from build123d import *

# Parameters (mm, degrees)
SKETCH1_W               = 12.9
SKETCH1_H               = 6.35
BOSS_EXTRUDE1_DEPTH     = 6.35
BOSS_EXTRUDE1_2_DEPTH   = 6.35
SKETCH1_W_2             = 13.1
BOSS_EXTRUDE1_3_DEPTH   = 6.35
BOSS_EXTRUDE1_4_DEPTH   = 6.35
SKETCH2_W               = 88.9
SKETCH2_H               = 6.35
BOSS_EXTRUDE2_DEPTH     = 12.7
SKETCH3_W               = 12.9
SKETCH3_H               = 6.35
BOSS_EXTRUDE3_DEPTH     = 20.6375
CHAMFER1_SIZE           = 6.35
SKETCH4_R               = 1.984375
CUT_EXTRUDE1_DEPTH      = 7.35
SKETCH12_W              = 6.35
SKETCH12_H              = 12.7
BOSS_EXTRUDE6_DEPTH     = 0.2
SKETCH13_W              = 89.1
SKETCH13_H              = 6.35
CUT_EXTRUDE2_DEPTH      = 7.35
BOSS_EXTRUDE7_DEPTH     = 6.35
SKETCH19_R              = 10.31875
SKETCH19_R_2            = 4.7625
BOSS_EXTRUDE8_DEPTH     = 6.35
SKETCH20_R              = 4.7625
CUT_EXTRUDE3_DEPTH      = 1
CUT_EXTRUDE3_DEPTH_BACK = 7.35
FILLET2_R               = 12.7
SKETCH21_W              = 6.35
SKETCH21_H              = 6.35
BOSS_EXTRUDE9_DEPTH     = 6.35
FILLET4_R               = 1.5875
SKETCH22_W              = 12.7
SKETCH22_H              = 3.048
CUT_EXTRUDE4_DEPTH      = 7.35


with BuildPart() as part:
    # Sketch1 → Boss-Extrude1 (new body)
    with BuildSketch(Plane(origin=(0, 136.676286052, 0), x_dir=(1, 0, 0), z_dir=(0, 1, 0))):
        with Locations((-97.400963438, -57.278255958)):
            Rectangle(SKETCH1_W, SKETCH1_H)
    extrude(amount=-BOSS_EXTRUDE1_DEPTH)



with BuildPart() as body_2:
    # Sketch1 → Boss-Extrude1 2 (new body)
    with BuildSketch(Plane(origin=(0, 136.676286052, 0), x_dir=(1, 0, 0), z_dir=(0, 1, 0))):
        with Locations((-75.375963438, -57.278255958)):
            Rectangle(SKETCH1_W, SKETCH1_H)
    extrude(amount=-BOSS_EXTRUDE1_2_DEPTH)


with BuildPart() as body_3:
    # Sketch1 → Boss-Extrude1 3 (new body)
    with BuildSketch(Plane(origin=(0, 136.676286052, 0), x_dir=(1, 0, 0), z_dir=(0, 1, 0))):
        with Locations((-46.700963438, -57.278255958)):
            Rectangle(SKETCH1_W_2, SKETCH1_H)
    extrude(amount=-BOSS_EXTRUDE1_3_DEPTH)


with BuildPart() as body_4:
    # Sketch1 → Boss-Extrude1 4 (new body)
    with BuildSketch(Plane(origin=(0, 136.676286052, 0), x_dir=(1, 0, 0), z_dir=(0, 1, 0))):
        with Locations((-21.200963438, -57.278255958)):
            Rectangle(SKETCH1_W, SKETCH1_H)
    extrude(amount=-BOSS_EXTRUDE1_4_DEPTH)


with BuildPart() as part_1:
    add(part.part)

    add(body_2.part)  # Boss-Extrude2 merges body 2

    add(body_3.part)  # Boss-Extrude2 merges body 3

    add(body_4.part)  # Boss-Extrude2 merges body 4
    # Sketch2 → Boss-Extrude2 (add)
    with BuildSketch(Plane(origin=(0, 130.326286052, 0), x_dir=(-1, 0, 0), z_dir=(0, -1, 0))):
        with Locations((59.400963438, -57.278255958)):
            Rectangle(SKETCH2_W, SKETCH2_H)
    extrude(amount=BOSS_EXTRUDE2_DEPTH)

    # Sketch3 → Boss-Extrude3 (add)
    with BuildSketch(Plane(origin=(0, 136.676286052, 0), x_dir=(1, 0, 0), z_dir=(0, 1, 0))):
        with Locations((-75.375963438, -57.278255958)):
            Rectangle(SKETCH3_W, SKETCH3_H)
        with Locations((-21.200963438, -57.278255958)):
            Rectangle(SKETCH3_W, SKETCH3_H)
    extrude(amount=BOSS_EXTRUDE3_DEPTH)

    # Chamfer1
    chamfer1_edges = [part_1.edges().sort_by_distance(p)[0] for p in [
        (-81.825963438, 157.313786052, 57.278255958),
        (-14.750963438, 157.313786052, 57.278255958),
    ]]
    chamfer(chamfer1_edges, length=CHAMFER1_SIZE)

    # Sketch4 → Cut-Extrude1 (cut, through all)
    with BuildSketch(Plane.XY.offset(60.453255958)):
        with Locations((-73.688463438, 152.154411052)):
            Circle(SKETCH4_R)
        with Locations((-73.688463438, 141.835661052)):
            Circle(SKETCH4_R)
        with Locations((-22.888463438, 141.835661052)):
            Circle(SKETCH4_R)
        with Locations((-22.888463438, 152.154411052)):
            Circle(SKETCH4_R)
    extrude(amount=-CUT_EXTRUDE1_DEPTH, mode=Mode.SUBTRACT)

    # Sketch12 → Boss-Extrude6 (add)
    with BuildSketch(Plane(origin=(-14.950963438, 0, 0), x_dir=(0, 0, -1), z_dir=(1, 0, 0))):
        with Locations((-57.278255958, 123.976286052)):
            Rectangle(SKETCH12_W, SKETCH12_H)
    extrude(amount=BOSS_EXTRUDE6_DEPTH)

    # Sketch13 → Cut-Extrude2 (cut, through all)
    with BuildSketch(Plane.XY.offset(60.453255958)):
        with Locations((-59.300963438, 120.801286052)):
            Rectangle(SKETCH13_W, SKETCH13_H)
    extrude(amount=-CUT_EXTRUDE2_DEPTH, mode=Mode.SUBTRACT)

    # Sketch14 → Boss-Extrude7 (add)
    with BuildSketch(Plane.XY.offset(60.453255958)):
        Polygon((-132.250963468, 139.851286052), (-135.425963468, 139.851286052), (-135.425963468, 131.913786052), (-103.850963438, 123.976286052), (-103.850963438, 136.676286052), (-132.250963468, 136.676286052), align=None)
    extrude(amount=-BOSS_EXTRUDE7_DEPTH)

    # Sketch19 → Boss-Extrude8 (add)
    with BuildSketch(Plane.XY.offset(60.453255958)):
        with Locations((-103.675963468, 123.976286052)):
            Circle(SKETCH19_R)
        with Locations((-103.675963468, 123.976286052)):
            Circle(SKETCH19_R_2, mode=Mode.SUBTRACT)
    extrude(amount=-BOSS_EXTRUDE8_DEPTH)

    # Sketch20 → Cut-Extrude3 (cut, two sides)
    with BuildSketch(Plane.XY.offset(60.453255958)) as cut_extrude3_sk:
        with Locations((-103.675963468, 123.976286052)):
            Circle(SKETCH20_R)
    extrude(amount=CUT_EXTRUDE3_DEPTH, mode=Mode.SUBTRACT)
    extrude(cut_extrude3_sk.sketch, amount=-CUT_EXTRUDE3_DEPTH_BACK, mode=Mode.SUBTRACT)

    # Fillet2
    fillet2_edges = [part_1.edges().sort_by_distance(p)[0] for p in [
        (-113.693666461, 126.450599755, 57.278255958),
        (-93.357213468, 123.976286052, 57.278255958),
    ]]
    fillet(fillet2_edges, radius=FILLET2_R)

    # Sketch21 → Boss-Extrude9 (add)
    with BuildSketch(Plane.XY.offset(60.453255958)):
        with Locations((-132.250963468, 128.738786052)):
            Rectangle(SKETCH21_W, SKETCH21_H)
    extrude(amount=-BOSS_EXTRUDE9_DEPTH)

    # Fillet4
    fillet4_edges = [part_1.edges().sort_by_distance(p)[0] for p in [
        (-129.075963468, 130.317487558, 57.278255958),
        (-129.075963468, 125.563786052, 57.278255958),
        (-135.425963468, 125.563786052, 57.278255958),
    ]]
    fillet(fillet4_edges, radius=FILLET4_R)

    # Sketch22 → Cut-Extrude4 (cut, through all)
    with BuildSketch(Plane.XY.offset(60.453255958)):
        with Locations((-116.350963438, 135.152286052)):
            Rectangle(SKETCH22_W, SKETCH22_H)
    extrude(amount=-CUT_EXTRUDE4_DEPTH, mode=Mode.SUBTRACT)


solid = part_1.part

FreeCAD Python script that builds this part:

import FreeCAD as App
import Part
import Sketcher

V = App.Vector
Q = App.Units.Quantity


def edges_at(feature, points):
    """Names of the edges that pass closest to the given points."""
    edges = feature.Shape.Edges
    near = lambda p: min(range(len(edges)), key=lambda i: edges[i].distToShape(Part.Vertex(*p))[0])
    return sorted({f"Edge{near(p) + 1}" for p in points})


def add_polygon(sketch, points):
    """Adds a closed chain of lines whose ends are joined by coincident constraints."""
    first, n = sketch.GeometryCount, len(points)
    for a, b in zip(points, points[1:] + points[:1]):
        sketch.addGeometry(Part.LineSegment(App.Vector(*a, 0), App.Vector(*b, 0)), False)
    for i in range(n):
        sketch.addConstraint(Sketcher.Constraint("Coincident", first + i, 2, first + (i + 1) % n, 1))

doc = App.newDocument("Part")
params = doc.addObject("Spreadsheet::Sheet", "Params")
for row, (alias, value) in enumerate([
    ("sketch1_height", "0.25 in"),
    ("pad1_length", "0.25 in"),
    ("sketch2_height", "0.25 in"),
    ("pad2_length", "0.25 in"),
    ("sketch3_height", "0.25 in"),
    ("pad3_length", "0.25 in"),
    ("sketch4_height", "0.25 in"),
    ("pad4_length", "0.25 in"),
    ("sketch5_width", "3.5 in"),
    ("sketch5_height", "0.25 in"),
    ("pad5_length", "0.5 in"),
    ("sketch6_height", "0.25 in"),
    ("pad6_length", "0.8125 in"),
    ("chamfer_size", "0.25 in"),
    ("sketch7_diameter", "0.15625 in"),
    ("sketch8_width", "0.5 in"),
    ("sketch8_height", "0.25 in"),
    ("pad7_length", "0.2 mm"),
    ("sketch9_height", "0.25 in"),
    ("sketch10_height", "0.5 in"),
    ("sketch10_width", "0.125 in"),
    ("sketch10_height2", "0.3125 in"),
    ("pad8_length", "0.25 in"),
    ("sketch11_diameter", "0.8125 in"),
    ("sketch11_diameter2", "0.375 in"),
    ("pad9_length", "0.25 in"),
    ("sketch12_diameter", "0.375 in"),
    ("fillet_radius", "0.5 in"),
    ("sketch13_width", "0.25 in"),
    ("pad10_length", "0.25 in"),
    ("fillet2_radius", "0.0625 in"),
    ("sketch14_width", "0.5 in"),
    ("sketch14_height", "0.12 in"),
], start=1):
    params.set(f"A{row}", alias)
    params.set(f"B{row}", "=" + value)
    params.setAlias(f"B{row}", alias)

body = doc.addObject("PartDesign::Body", "Body")

# Sketch on XZ plane
sketch1 = doc.addObject("Sketcher::SketchObject", "Sketch")
body.addObject(sketch1)
sketch1.AttachmentSupport = (doc.XZ_Plane, [""])
sketch1.MapMode = "FlatFace"
sketch1.AttachmentOffset = App.Placement(V(0, 0, -136.676286), App.Rotation())
add_polygon(sketch1, [(-104, 54), (-104, 60), (-91, 60), (-91, 54)])  # lines 0-3
sketch1.addConstraint([
    Sketcher.Constraint("Vertical", 0),
    Sketcher.Constraint("Horizontal", 1),
    Sketcher.Constraint("Vertical", 2),
    Sketcher.Constraint("Horizontal", 3),
    Sketcher.Constraint("DistanceY", 0, 1, 0, 2, Q("0.25 in")),
    Sketcher.Constraint("DistanceX", 1, 1, 1, 2, 12.9),
    Sketcher.Constraint("DistanceX", 0, 2, -1, 1, 103.850963),
    Sketcher.Constraint("DistanceY", -1, 1, 0, 2, 60.453256),
])
sketch1.setExpression("Constraints[8]", "Params.sketch1_height")
pad1 = doc.addObject("PartDesign::Pad", "Pad")
body.addObject(pad1)
pad1.Profile = sketch1
pad1.setExpression("Length", "Params.pad1_length")
body2 = doc.addObject("PartDesign::Body", "Body001")

# Sketch on XZ plane
sketch2 = doc.addObject("Sketcher::SketchObject", "Sketch001")
body2.addObject(sketch2)
sketch2.AttachmentSupport = (doc.getObject("XZ_Plane001"), [""])
sketch2.MapMode = "FlatFace"
sketch2.AttachmentOffset = App.Placement(V(0, 0, -136.676286), App.Rotation())
add_polygon(sketch2, [(-82, 54), (-82, 60), (-69, 60), (-69, 54)])  # lines 0-3
sketch2.addConstraint([
    Sketcher.Constraint("Vertical", 0),
    Sketcher.Constraint("Horizontal", 1),
    Sketcher.Constraint("Vertical", 2),
    Sketcher.Constraint("Horizontal", 3),
    Sketcher.Constraint("DistanceY", 0, 1, 0, 2, Q("0.25 in")),
    Sketcher.Constraint("DistanceX", 1, 1, 1, 2, 12.9),
    Sketcher.Constraint("DistanceX", 0, 2, -1, 1, 81.825963),
    Sketcher.Constraint("DistanceY", -1, 1, 0, 2, 60.453256),
])
sketch2.setExpression("Constraints[8]", "Params.sketch2_height")
pad2 = doc.addObject("PartDesign::Pad", "Pad001")
body2.addObject(pad2)
pad2.Profile = sketch2
pad2.setExpression("Length", "Params.pad2_length")
body3 = doc.addObject("PartDesign::Body", "Body002")

# Sketch on XZ plane
sketch3 = doc.addObject("Sketcher::SketchObject", "Sketch002")
body3.addObject(sketch3)
sketch3.AttachmentSupport = (doc.getObject("XZ_Plane002"), [""])
sketch3.MapMode = "FlatFace"
sketch3.AttachmentOffset = App.Placement(V(0, 0, -136.676286), App.Rotation())
add_polygon(sketch3, [(-53, 54), (-53, 60), (-40, 60), (-40, 54)])  # lines 0-3
sketch3.addConstraint([
    Sketcher.Constraint("Vertical", 0),
    Sketcher.Constraint("Horizontal", 1),
    Sketcher.Constraint("Vertical", 2),
    Sketcher.Constraint("Horizontal", 3),
    Sketcher.Constraint("DistanceY", 0, 1, 0, 2, Q("0.25 in")),
    Sketcher.Constraint("DistanceX", 1, 1, 1, 2, 13.1),
    Sketcher.Constraint("DistanceX", 0, 2, -1, 1, 53.250963),
    Sketcher.Constraint("DistanceY", -1, 1, 0, 2, 60.453256),
])
sketch3.setExpression("Constraints[8]", "Params.sketch3_height")
pad3 = doc.addObject("PartDesign::Pad", "Pad002")
body3.addObject(pad3)
pad3.Profile = sketch3
pad3.setExpression("Length", "Params.pad3_length")
body4 = doc.addObject("PartDesign::Body", "Body003")

# Sketch on XZ plane
sketch4 = doc.addObject("Sketcher::SketchObject", "Sketch003")
body4.addObject(sketch4)
sketch4.AttachmentSupport = (doc.getObject("XZ_Plane003"), [""])
sketch4.MapMode = "FlatFace"
sketch4.AttachmentOffset = App.Placement(V(0, 0, -136.676286), App.Rotation())
add_polygon(sketch4, [(-28, 54), (-28, 60), (-15, 60), (-15, 54)])  # lines 0-3
sketch4.addConstraint([
    Sketcher.Constraint("Vertical", 0),
    Sketcher.Constraint("Horizontal", 1),
    Sketcher.Constraint("Vertical", 2),
    Sketcher.Constraint("Horizontal", 3),
    Sketcher.Constraint("DistanceY", 0, 1, 0, 2, Q("0.25 in")),
    Sketcher.Constraint("DistanceX", 1, 1, 1, 2, 12.9),
    Sketcher.Constraint("DistanceX", 0, 2, -1, 1, 27.650963),
    Sketcher.Constraint("DistanceY", -1, 1, 0, 2, 60.453256),
])
sketch4.setExpression("Constraints[8]", "Params.sketch4_height")
pad4 = doc.addObject("PartDesign::Pad", "Pad003")
body4.addObject(pad4)
pad4.Profile = sketch4
pad4.setExpression("Length", "Params.pad4_length")
body.AllowCompound = True
doc.recompute()

boolean = doc.addObject("PartDesign::Boolean", "Boolean")
body.addObject(boolean)
boolean.Type = "Fuse"
boolean.addObjects([body2])
doc.recompute()

boolean2 = doc.addObject("PartDesign::Boolean", "Boolean001")
body.addObject(boolean2)
boolean2.Type = "Fuse"
boolean2.addObjects([body3])
doc.recompute()

boolean3 = doc.addObject("PartDesign::Boolean", "Boolean002")
body.addObject(boolean3)
boolean3.Type = "Fuse"
boolean3.addObjects([body4])

# Sketch on XZ plane
sketch5 = doc.addObject("Sketcher::SketchObject", "Sketch004")
body.addObject(sketch5)
sketch5.AttachmentSupport = (doc.XZ_Plane, [""])
sketch5.MapMode = "FlatFace"
sketch5.AttachmentOffset = App.Placement(V(0, 0, -130.326286), App.Rotation())
add_polygon(sketch5, [(-15, 54), (-15, 60), (-104, 60), (-104, 54)])  # lines 0-3
sketch5.addConstraint([
    Sketcher.Constraint("Vertical", 0),
    Sketcher.Constraint("Horizontal", 1),
    Sketcher.Constraint("Vertical", 2),
    Sketcher.Constraint("Horizontal", 3),
    Sketcher.Constraint("DistanceX", 1, 2, 1, 1, Q("3.5 in")),
    Sketcher.Constraint("DistanceY", 0, 1, 0, 2, Q("0.25 in")),
    Sketcher.Constraint("DistanceX", 0, 2, -1, 1, 14.950963),
    Sketcher.Constraint("DistanceY", -1, 1, 0, 2, 60.453256),
])
sketch5.setExpression("Constraints[8]", "Params.sketch5_width")
sketch5.setExpression("Constraints[9]", "Params.sketch5_height")
pad5 = doc.addObject("PartDesign::Pad", "Pad004")
body.addObject(pad5)
pad5.Profile = sketch5
pad5.setExpression("Length", "Params.pad5_length")

# Sketch on XZ plane
sketch6 = doc.addObject("Sketcher::SketchObject", "Sketch005")
body.addObject(sketch6)
sketch6.AttachmentSupport = (doc.XZ_Plane, [""])
sketch6.MapMode = "FlatFace"
sketch6.AttachmentOffset = App.Placement(V(0, 0, -136.676286), App.Rotation())
add_polygon(sketch6, [(-82, 54), (-82, 60), (-69, 60), (-69, 54)])  # lines 0-3
add_polygon(sketch6, [(-28, 54), (-28, 60), (-15, 60), (-15, 54)])  # lines 4-7
sketch6.addConstraint([
    Sketcher.Constraint("Vertical", 0),
    Sketcher.Constraint("Horizontal", 1),
    Sketcher.Constraint("Vertical", 2),
    Sketcher.Constraint("Horizontal", 3),
    Sketcher.Constraint("Vertical", 4),
    Sketcher.Constraint("Horizontal", 5),
    Sketcher.Constraint("Vertical", 6),
    Sketcher.Constraint("Horizontal", 7),
    Sketcher.Constraint("Horizontal", 1, 2, 4, 2),
    Sketcher.Constraint("Horizontal", 3, 2, 6, 2),
    Sketcher.Constraint("Equal", 3, 5),
    Sketcher.Constraint("DistanceY", 0, 1, 0, 2, Q("0.25 in")),
    Sketcher.Constraint("DistanceX", 1, 2, 4, 2, Q("1.625 in")),
    Sketcher.Constraint("DistanceX", 1, 1, 1, 2, 12.9),
    Sketcher.Constraint("DistanceX", 0, 2, -1, 1, 81.825963),
    Sketcher.Constraint("DistanceY", -1, 1, 0, 2, 60.453256),
])
sketch6.setExpression("Constraints[19]", "Params.sketch6_height")
pad6 = doc.addObject("PartDesign::Pad", "Pad005")
body.addObject(pad6)
pad6.Profile = sketch6
pad6.setExpression("Length", "Params.pad6_length")
pad6.Reversed = True
doc.recompute()

chamfer = doc.addObject("PartDesign::Chamfer", "Chamfer")
body.addObject(chamfer)
chamfer.Base = (pad6, edges_at(pad6, [(-81.826, 157.314, 57.278), (-14.751, 157.314, 57.278)]))
chamfer.setExpression("Size", "Params.chamfer_size")

# Sketch on XY plane
sketch7 = doc.addObject("Sketcher::SketchObject", "Sketch006")
body.addObject(sketch7)
sketch7.AttachmentSupport = (doc.XY_Plane, [""])
sketch7.MapMode = "FlatFace"
sketch7.AttachmentOffset = App.Placement(V(0, 0, 60.453256), App.Rotation())
sketch7.addGeometry([
    Part.Circle(V(-73.7, 152.2, 0), V(0, 0, 1), 2),
    Part.Circle(V(-73.7, 141.8, 0), V(0, 0, 1), 2),
    Part.Circle(V(-22.9, 141.8, 0), V(0, 0, 1), 2),
    Part.Circle(V(-22.9, 152.2, 0), V(0, 0, 1), 2),
], False)
sketch7.addConstraint([
    Sketcher.Constraint("Equal", 0, 1),
    Sketcher.Constraint("Equal", 1, 2),
    Sketcher.Constraint("Equal", 2, 3),
    Sketcher.Constraint("Horizontal", 1, 3, 2, 3),
    Sketcher.Constraint("Horizontal", 0, 3, 3, 3),
    Sketcher.Constraint("Vertical", 0, 3, 1, 3),
    Sketcher.Constraint("Vertical", 2, 3, 3, 3),
    Sketcher.Constraint("Diameter", 0, Q("0.15625 in")),
    Sketcher.Constraint("DistanceX", 1, 3, 2, 3, Q("2 in")),
    Sketcher.Constraint("DistanceY", 1, 3, 0, 3, Q("0.40625 in")),
    Sketcher.Constraint("DistanceY", -1, 1, 0, 3, 152.154411),
    Sketcher.Constraint("DistanceX", 0, 3, -1, 1, 73.688463),
])
sketch7.setExpression("Constraints[7]", "Params.sketch7_diameter")
pocket1 = doc.addObject("PartDesign::Pocket", "Pocket")
body.addObject(pocket1)
pocket1.Profile = sketch7
pocket1.Type = "ThroughAll"

# Sketch on YZ plane
sketch8 = doc.addObject("Sketcher::SketchObject", "Sketch007")
body.addObject(sketch8)
sketch8.AttachmentSupport = (doc.YZ_Plane, [""])
sketch8.MapMode = "FlatFace"
sketch8.AttachmentOffset = App.Placement(V(0, 0, -14.950963), App.Rotation())
add_polygon(sketch8, [(130, 60), (118, 60), (118, 54), (130, 54)])  # lines 0-3
sketch8.addConstraint([
    Sketcher.Constraint("Horizontal", 0),
    Sketcher.Constraint("Vertical", 1),
    Sketcher.Constraint("Horizontal", 2),
    Sketcher.Constraint("Vertical", 3),
    Sketcher.Constraint("DistanceX", 0, 2, 0, 1, Q("0.5 in")),
    Sketcher.Constraint("DistanceY", 1, 2, 1, 1, Q("0.25 in")),
    Sketcher.Constraint("DistanceX", -1, 1, 0, 2, 117.626286),
    Sketcher.Constraint("DistanceY", -1, 1, 0, 2, 60.453256),
])
sketch8.setExpression("Constraints[8]", "Params.sketch8_width")
sketch8.setExpression("Constraints[9]", "Params.sketch8_height")
pad7 = doc.addObject("PartDesign::Pad", "Pad006")
body.addObject(pad7)
pad7.Profile = sketch8
pad7.setExpression("Length", "Params.pad7_length")

# Sketch on XY plane
sketch9 = doc.addObject("Sketcher::SketchObject", "Sketch008")
body.addObject(sketch9)
sketch9.AttachmentSupport = (doc.XY_Plane, [""])
sketch9.MapMode = "FlatFace"
sketch9.AttachmentOffset = App.Placement(V(0, 0, 60.453256), App.Rotation())
add_polygon(sketch9, [(-104, 124), (-104, 118), (-15, 118), (-15, 124)])  # lines 0-3
sketch9.addConstraint([
    Sketcher.Constraint("Vertical", 0),
    Sketcher.Constraint("Horizontal", 1),
    Sketcher.Constraint("Vertical", 2),
    Sketcher.Constraint("Horizontal", 3),
    Sketcher.Constraint("DistanceY", 0, 2, 0, 1, Q("0.25 in")),
    Sketcher.Constraint("DistanceX", 1, 1, 1, 2, 89.1),
    Sketcher.Constraint("DistanceX", 0, 2, -1, 1, 103.850963),
    Sketcher.Constraint("DistanceY", -1, 1, 0, 2, 117.626286),
])
sketch9.setExpression("Constraints[8]", "Params.sketch9_height")
pocket2 = doc.addObject("PartDesign::Pocket", "Pocket001")
body.addObject(pocket2)
pocket2.Profile = sketch9
pocket2.Type = "ThroughAll"

# Sketch on XY plane
sketch10 = doc.addObject("Sketcher::SketchObject", "Sketch009")
body.addObject(sketch10)
sketch10.AttachmentSupport = (doc.XY_Plane, [""])
sketch10.MapMode = "FlatFace"
sketch10.AttachmentOffset = App.Placement(V(0, 0, 60.453256), App.Rotation())
add_polygon(sketch10, [(-132.3, 139.9), (-135.4, 139.9), (-135.4, 131.9), (-103.9, 124), (-103.9, 136.7), (-132.3, 136.7)])  # lines 0-5
sketch10.addConstraint([
    Sketcher.Constraint("Horizontal", 0),
    Sketcher.Constraint("Vertical", 1),
    Sketcher.Constraint("Vertical", 3),
    Sketcher.Constraint("Horizontal", 4),
    Sketcher.Constraint("Vertical", 5),
    Sketcher.Constraint("Equal", 0, 5),
    Sketcher.Constraint("DistanceY", 3, 1, 3, 2, Q("0.5 in")),
    Sketcher.Constraint("DistanceX", 0, 2, 0, 1, Q("0.125 in")),
    Sketcher.Constraint("DistanceY", 1, 2, 1, 1, Q("0.3125 in")),
    Sketcher.Constraint("DistanceX", 4, 2, 4, 1, 28.4),
    Sketcher.Constraint("DistanceX", 0, 2, -1, 1, 135.425963),
    Sketcher.Constraint("DistanceY", -1, 1, 0, 2, 139.851286),
])
sketch10.setExpression("Constraints[12]", "Params.sketch10_height")
sketch10.setExpression("Constraints[13]", "Params.sketch10_width")
sketch10.setExpression("Constraints[14]", "Params.sketch10_height2")
pad8 = doc.addObject("PartDesign::Pad", "Pad007")
body.addObject(pad8)
pad8.Profile = sketch10
pad8.setExpression("Length", "Params.pad8_length")
pad8.Reversed = True

# Sketch on XY plane
sketch11 = doc.addObject("Sketcher::SketchObject", "Sketch010")
body.addObject(sketch11)
sketch11.AttachmentSupport = (doc.XY_Plane, [""])
sketch11.MapMode = "FlatFace"
sketch11.AttachmentOffset = App.Placement(V(0, 0, 60.453256), App.Rotation())
sketch11.addGeometry([
    Part.Circle(V(-103.7, 124, 0), V(0, 0, 1), 10.3),
    Part.Circle(V(-103.7, 124, 0), V(0, 0, 1), 4.8),
], False)
sketch11.addConstraint([
    Sketcher.Constraint("Coincident", 1, 3, 0, 3),
    Sketcher.Constraint("Diameter", 0, Q("0.8125 in")),
    Sketcher.Constraint("Diameter", 1, Q("0.375 in")),
    Sketcher.Constraint("DistanceX", 0, 3, -1, 1, 103.675963),
    Sketcher.Constraint("DistanceY", -1, 1, 0, 3, 123.976286),
])
sketch11.setExpression("Constraints[1]", "Params.sketch11_diameter")
sketch11.setExpression("Constraints[2]", "Params.sketch11_diameter2")
pad9 = doc.addObject("PartDesign::Pad", "Pad008")
body.addObject(pad9)
pad9.Profile = sketch11
pad9.setExpression("Length", "Params.pad9_length")
pad9.Reversed = True

# Sketch on XY plane
sketch12 = doc.addObject("Sketcher::SketchObject", "Sketch011")
body.addObject(sketch12)
sketch12.AttachmentSupport = (doc.XY_Plane, [""])
sketch12.MapMode = "FlatFace"
sketch12.AttachmentOffset = App.Placement(V(0, 0, 60.453256), App.Rotation())
sketch12.addGeometry(Part.Circle(V(-103.7, 124, 0), V(0, 0, 1), 4.8), False)
sketch12.addConstraint([
    Sketcher.Constraint("Diameter", 0, Q("0.375 in")),
    Sketcher.Constraint("DistanceX", 0, 3, -1, 1, 103.675963),
    Sketcher.Constraint("DistanceY", -1, 1, 0, 3, 123.976286),
])
sketch12.setExpression("Constraints[0]", "Params.sketch12_diameter")
pocket3 = doc.addObject("PartDesign::Pocket", "Pocket002")
body.addObject(pocket3)
pocket3.Profile = sketch12
pocket3.Type = "ThroughAll"
pocket3.Midplane = True
doc.recompute()

fillet = doc.addObject("PartDesign::Fillet", "Fillet")
body.addObject(fillet)
fillet.Base = (pocket3, edges_at(pocket3, [(-113.694, 126.451, 57.278), (-93.357, 123.976, 57.278)]))
fillet.setExpression("Radius", "Params.fillet_radius")

# Sketch on XY plane
sketch13 = doc.addObject("Sketcher::SketchObject", "Sketch012")
body.addObject(sketch13)
sketch13.AttachmentSupport = (doc.XY_Plane, [""])
sketch13.MapMode = "FlatFace"
sketch13.AttachmentOffset = App.Placement(V(0, 0, 60.453256), App.Rotation())
add_polygon(sketch13, [(-135, 132), (-135, 126), (-129, 126), (-129, 132)])  # lines 0-3
sketch13.addConstraint([
    Sketcher.Constraint("Vertical", 0),
    Sketcher.Constraint("Horizontal", 1),
    Sketcher.Constraint("Vertical", 2),
    Sketcher.Constraint("Horizontal", 3),
    Sketcher.Constraint("Equal", 3, 0),
    Sketcher.Constraint("DistanceX", 1, 1, 1, 2, Q("0.25 in")),
    Sketcher.Constraint("DistanceX", 0, 2, -1, 1, 135.425963),
    Sketcher.Constraint("DistanceY", -1, 1, 0, 2, 125.563786),
])
sketch13.setExpression("Constraints[9]", "Params.sketch13_width")
pad10 = doc.addObject("PartDesign::Pad", "Pad009")
body.addObject(pad10)
pad10.Profile = sketch13
pad10.setExpression("Length", "Params.pad10_length")
pad10.Reversed = True
doc.recompute()

fillet2 = doc.addObject("PartDesign::Fillet", "Fillet001")
body.addObject(fillet2)
fillet2.Base = (pad10, edges_at(pad10, [(-129.076, 130.317, 57.278), (-129.076, 125.564, 57.278), (-135.426, 125.564, 57.278)]))
fillet2.setExpression("Radius", "Params.fillet2_radius")

# Sketch on XY plane
sketch14 = doc.addObject("Sketcher::SketchObject", "Sketch013")
body.addObject(sketch14)
sketch14.AttachmentSupport = (doc.XY_Plane, [""])
sketch14.MapMode = "FlatFace"
sketch14.AttachmentOffset = App.Placement(V(0, 0, 60.453256), App.Rotation())
add_polygon(sketch14, [(-122.7, 136.7), (-122.7, 133.6), (-110, 133.6), (-110, 136.7)])  # lines 0-3
sketch14.addConstraint([
    Sketcher.Constraint("Vertical", 0),
    Sketcher.Constraint("Horizontal", 1),
    Sketcher.Constraint("Vertical", 2),
    Sketcher.Constraint("Horizontal", 3),
    Sketcher.Constraint("DistanceX", 1, 1, 1, 2, Q("0.5 in")),
    Sketcher.Constraint("DistanceY", 0, 2, 0, 1, Q("0.12 in")),
    Sketcher.Constraint("DistanceX", 0, 2, -1, 1, 122.700963),
    Sketcher.Constraint("DistanceY", -1, 1, 0, 2, 133.628286),
])
sketch14.setExpression("Constraints[8]", "Params.sketch14_width")
sketch14.setExpression("Constraints[9]", "Params.sketch14_height")
pocket4 = doc.addObject("PartDesign::Pocket", "Pocket003")
body.addObject(pocket4)
pocket4.Profile = sketch14
pocket4.Type = "ThroughAll"

doc.recompute()
